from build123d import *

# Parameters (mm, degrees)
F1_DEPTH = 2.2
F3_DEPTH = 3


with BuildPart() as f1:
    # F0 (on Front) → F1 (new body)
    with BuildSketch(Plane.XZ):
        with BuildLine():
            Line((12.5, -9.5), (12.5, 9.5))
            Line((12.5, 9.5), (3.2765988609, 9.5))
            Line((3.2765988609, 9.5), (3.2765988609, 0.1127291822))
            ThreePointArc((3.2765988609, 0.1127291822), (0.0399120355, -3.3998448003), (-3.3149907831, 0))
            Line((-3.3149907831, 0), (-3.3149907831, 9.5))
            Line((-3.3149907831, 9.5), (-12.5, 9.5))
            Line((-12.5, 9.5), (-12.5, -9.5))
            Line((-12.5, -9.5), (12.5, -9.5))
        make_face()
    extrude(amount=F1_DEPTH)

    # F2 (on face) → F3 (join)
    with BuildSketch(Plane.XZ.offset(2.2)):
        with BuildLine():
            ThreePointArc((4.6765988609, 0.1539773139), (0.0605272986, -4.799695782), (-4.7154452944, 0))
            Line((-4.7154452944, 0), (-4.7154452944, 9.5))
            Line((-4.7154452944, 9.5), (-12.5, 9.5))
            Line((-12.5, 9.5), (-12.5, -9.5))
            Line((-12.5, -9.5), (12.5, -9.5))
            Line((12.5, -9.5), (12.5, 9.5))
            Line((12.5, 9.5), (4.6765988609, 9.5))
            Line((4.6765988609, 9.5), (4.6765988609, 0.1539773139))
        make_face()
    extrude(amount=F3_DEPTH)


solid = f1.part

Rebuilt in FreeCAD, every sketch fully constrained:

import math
import FreeCAD as App
import Part
import Sketcher
Q = App.Units.Quantity

doc = App.newDocument("Part")
body = doc.addObject("PartDesign::Body", "Body")

sketch1 = doc.addObject("Sketcher::SketchObject", "Sketch")
body.addObject(sketch1)
sketch1.AttachmentSupport = (doc.XZ_Plane, [""])
sketch1.MapMode = "FlatFace"
sketch1.addGeometry([
    Part.LineSegment(App.Vector(12.5, -9.5, 0), App.Vector(12.5, 9.5, 0)),
    Part.LineSegment(App.Vector(12.5, 9.5, 0), App.Vector(3.276599, 9.5, 0)),
    Part.LineSegment(App.Vector(3.276599, 9.5, 0), App.Vector(3.276599, 0.112729, 0)),
    Part.ArcOfCircle(Part.Circle(App.Vector(-0.016516, -0.100327, 0), App.Vector(0, 0, 1), 3.3), math.radians(178.257813), math.radians(363.701737)),
    Part.LineSegment(App.Vector(-3.314991, 0, 0), App.Vector(-3.314991, 9.5, 0)),
    Part.LineSegment(App.Vector(-3.314991, 9.5, 0), App.Vector(-12.5, 9.5, 0)),
    Part.LineSegment(App.Vector(-12.5, 9.5, 0), App.Vector(-12.5, -9.5, 0)),
    Part.LineSegment(App.Vector(-12.5, -9.5, 0), App.Vector(12.5, -9.5, 0)),
], False)
sketch1.addConstraint([
    Sketcher.Constraint("Coincident", 0, 2, 1, 1),
    Sketcher.Constraint("Coincident", 1, 2, 2, 1),
    Sketcher.Constraint("Coincident", 2, 2, 3, 2),
    Sketcher.Constraint("Coincident", 3, 1, 4, 1),
    Sketcher.Constraint("Coincident", 4, 2, 5, 1),
    Sketcher.Constraint("Coincident", 5, 2, 6, 1),
    Sketcher.Constraint("Coincident", 6, 2, 7, 1),
    Sketcher.Constraint("Coincident", 7, 2, 0, 1),
    Sketcher.Constraint("Vertical", 0),
    Sketcher.Constraint("Horizontal", 1),
    Sketcher.Constraint("Vertical", 2),
    Sketcher.Constraint("Vertical", 4),
    Sketcher.Constraint("Horizontal", 5),
    Sketcher.Constraint("Vertical", 6),
    Sketcher.Constraint("Horizontal", 7),
    Sketcher.Constraint("Symmetric", 0, 2, 6, 2, -1, 1),
    Sketcher.Constraint("PointOnObject", 3, 1, -1),
    Sketcher.Constraint("Horizontal", 1, 2, 4, 2),
    Sketcher.Constraint("Radius", 3, Q("3.3 mm")),
    Sketcher.Constraint("DistanceX", 7, 1, 7, 2, Q("25 mm")),
    Sketcher.Constraint("DistanceY", 0, 1, 0, 2, Q("19 mm")),
    Sketcher.Constraint("DistanceX", 1, 2, 1, 1, Q("9.223401 mm")),
    Sketcher.Constraint("DistanceX", 5, 2, 5, 1, Q("9.185009 mm")),
    Sketcher.Constraint("DistanceY", 2, 2, 2, 1, Q("9.387271 mm")),
])
pad1 = doc.addObject("PartDesign::Pad", "Pad")
body.addObject(pad1)
pad1.Profile = sketch1
pad1.Length = 2.2

sketch2 = doc.addObject("Sketcher::SketchObject", "Sketch001")
body.addObject(sketch2)
sketch2.AttachmentSupport = (doc.XZ_Plane, [""])
sketch2.MapMode = "FlatFace"
sketch2.AttachmentOffset = App.Placement(App.Vector(0, 0, 2.2), App.Rotation())
sketch2.addGeometry([
    Part.ArcOfCircle(Part.Circle(App.Vector(-0.016516, -0.100327, 0), App.Vector(0, 0, 1), 4.7), math.radians(178.776858), math.radians(363.101638)),
    Part.LineSegment(App.Vector(-4.715445, 0, 0), App.Vector(-4.715445, 9.5, 0)),
    Part.LineSegment(App.Vector(-4.715445, 9.5, 0), App.Vector(-12.5, 9.5, 0)),
    Part.LineSegment(App.Vector(-12.5, 9.5, 0), App.Vector(-12.5, -9.5, 0)),
    Part.LineSegment(App.Vector(-12.5, -9.5, 0), App.Vector(12.5, -9.5, 0)),
    Part.LineSegment(App.Vector(12.5, -9.5, 0), App.Vector(12.5, 9.5, 0)),
    Part.LineSegment(App.Vector(12.5, 9.5, 0), App.Vector(4.676599, 9.5, 0)),
    Part.LineSegment(App.Vector(4.676599, 9.5, 0), App.Vector(4.676599, 0.153977, 0)),
], False)
sketch2.addConstraint([
    Sketcher.Constraint("Coincident", 0, 1, 1, 1),
    Sketcher.Constraint("Coincident", 1, 2, 2, 1),
    Sketcher.Constraint("Coincident", 2, 2, 3, 1),
    Sketcher.Constraint("Coincident", 3, 2, 4, 1),
    Sketcher.Constraint("Coincident", 4, 2, 5, 1),
    Sketcher.Constraint("Coincident", 5, 2, 6, 1),
    Sketcher.Constraint("Coincident", 6, 2, 7, 1),
    Sketcher.Constraint("Coincident", 7, 2, 0, 2),
    Sketcher.Constraint("Vertical", 1),
    Sketcher.Constraint("Horizontal", 2),
    Sketcher.Constraint("Vertical", 3),
    Sketcher.Constraint("Horizontal", 4),
    Sketcher.Constraint("Vertical", 5),
    Sketcher.Constraint("Horizontal", 6),
    Sketcher.Constraint("Vertical", 7),
    Sketcher.Constraint("Symmetric", 2, 2, 4, 2, -1, 1),
    Sketcher.Constraint("PointOnObject", 0, 1, -1),
    Sketcher.Constraint("Horizontal", 2, 2, 5, 2),
    Sketcher.Constraint("Radius", 0, Q("4.7 mm")),
    Sketcher.Constraint("DistanceX", 4, 1, 4, 2, Q("25 mm")),
    Sketcher.Constraint("DistanceY", 3, 2, 3, 1, Q("19 mm")),
    Sketcher.Constraint("DistanceX", 6, 2, 6, 1, Q("7.823401 mm")),
    Sketcher.Constraint("DistanceX", 2, 2, 2, 1, Q("7.784555 mm")),
    Sketcher.Constraint("DistanceY", 7, 2, 7, 1, Q("9.346023 mm")),
])
pad2 = doc.addObject("PartDesign::Pad", "Pad001")
body.addObject(pad2)
pad2.Profile = sketch2
pad2.Length = 3

doc.recompute()
